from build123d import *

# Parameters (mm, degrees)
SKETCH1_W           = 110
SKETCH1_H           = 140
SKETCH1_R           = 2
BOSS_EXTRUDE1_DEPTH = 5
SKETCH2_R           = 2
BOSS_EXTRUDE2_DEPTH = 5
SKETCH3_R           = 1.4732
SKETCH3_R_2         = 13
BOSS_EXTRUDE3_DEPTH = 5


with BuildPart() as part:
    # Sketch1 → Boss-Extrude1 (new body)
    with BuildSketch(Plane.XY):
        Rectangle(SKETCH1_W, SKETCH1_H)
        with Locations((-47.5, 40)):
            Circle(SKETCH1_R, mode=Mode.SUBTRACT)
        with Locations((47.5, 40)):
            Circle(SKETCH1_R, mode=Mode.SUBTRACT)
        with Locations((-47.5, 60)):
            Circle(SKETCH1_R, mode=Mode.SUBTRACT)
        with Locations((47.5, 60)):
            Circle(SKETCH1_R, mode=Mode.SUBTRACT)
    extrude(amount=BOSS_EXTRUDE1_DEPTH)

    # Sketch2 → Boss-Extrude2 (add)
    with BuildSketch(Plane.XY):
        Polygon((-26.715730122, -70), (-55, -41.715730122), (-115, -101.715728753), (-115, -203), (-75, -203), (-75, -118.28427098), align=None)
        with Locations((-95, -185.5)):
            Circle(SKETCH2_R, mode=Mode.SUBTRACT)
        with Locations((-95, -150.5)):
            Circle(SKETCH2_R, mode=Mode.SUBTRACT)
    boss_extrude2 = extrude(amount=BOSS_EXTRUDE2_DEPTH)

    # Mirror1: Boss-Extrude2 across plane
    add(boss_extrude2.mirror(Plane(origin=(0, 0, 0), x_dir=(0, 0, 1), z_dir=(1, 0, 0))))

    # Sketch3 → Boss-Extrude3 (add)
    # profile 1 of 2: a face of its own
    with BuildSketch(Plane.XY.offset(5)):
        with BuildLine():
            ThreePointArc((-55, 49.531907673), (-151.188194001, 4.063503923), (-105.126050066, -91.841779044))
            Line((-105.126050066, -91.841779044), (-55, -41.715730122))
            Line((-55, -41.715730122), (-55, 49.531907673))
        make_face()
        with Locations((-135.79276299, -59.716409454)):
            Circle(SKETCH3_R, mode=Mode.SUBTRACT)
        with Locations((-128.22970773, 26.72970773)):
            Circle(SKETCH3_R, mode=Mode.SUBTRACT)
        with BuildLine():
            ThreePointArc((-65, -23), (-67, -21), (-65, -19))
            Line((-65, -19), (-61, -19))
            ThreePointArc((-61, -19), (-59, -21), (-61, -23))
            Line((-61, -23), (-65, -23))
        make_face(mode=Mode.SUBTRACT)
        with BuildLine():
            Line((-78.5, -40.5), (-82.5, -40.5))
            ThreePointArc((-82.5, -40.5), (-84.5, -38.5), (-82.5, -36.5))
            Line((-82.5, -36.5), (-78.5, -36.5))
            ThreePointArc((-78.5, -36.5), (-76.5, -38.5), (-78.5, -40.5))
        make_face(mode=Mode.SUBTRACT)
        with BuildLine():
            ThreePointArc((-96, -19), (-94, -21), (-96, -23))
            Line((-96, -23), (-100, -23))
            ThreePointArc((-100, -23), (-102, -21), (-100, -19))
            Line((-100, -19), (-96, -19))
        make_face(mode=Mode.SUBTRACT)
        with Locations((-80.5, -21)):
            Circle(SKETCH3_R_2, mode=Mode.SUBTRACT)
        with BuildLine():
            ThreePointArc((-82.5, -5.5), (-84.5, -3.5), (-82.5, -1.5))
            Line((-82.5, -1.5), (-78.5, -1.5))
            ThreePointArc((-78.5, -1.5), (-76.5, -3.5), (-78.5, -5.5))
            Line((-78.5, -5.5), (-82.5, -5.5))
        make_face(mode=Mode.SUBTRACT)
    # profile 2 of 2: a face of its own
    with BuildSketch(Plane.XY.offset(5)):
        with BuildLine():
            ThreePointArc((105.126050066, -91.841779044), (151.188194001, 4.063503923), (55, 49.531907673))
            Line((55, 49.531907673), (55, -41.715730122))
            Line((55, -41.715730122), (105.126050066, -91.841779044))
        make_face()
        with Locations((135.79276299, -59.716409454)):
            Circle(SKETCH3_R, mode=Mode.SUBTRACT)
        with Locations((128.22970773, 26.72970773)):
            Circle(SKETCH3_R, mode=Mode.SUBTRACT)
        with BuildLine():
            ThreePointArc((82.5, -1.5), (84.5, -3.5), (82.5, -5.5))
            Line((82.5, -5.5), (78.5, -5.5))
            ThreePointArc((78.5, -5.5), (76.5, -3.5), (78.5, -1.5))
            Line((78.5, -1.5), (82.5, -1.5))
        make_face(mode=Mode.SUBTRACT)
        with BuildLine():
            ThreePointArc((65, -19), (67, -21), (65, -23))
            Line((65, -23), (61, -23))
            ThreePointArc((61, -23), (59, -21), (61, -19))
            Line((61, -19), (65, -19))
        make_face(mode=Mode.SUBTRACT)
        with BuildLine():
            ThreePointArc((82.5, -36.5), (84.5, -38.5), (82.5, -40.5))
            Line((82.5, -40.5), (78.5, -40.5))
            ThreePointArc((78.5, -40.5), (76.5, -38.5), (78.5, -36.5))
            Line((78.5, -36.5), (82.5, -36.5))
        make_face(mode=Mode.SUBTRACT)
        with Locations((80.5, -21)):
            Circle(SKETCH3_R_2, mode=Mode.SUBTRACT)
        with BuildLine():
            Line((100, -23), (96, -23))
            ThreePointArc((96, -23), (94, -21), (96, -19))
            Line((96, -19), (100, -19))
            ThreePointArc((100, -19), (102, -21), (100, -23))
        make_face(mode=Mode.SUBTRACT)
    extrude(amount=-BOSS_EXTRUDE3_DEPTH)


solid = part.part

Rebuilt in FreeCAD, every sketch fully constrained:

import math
import FreeCAD as App
import Part
import Sketcher
Q = App.Units.Quantity


def add_polygon(sketch, points):
    """Adds a closed chain of lines whose ends are joined by coincident constraints."""
    first, n = sketch.GeometryCount, len(points)
    for a, b in zip(points, points[1:] + points[:1]):
        sketch.addGeometry(Part.LineSegment(App.Vector(*a, 0), App.Vector(*b, 0)), False)
    for i in range(n):
        sketch.addConstraint(Sketcher.Constraint("Coincident", first + i, 2, first + (i + 1) % n, 1))

doc = App.newDocument("Part")
body = doc.addObject("PartDesign::Body", "Body")

# Sketch on XY plane
sketch1 = body.newObject("Sketcher::SketchObject", "Sketch")
sketch1.AttachmentSupport = (doc.getObject("XY_Plane"), [""])
sketch1.MapMode = "FlatFace"
add_polygon(sketch1, [(-55, 70), (-55, -70), (55, -70), (55, 70)])  # lines 0-3
sketch1.addGeometry(Part.Circle(App.Vector(-47.5, 40, 0), App.Vector(0, 0, 1), 2), False)  # 4
sketch1.addGeometry(Part.Circle(App.Vector(47.5, 40, 0), App.Vector(0, 0, 1), 2), False)  # 5
sketch1.addGeometry(Part.Circle(App.Vector(-47.5, 60, 0), App.Vector(0, 0, 1), 2), False)  # 6
sketch1.addGeometry(Part.Circle(App.Vector(47.5, 60, 0), App.Vector(0, 0, 1), 2), False)  # 7
sketch1.addConstraint([
    Sketcher.Constraint("Vertical", 0),
    Sketcher.Constraint("Horizontal", 1),
    Sketcher.Constraint("Vertical", 2),
    Sketcher.Constraint("Horizontal", 3),
    Sketcher.Constraint("Equal", 4, 5),
    Sketcher.Constraint("Equal", 5, 6),
    Sketcher.Constraint("Equal", 6, 7),
    Sketcher.Constraint("Symmetric", 0, 2, 2, 2, -1, 1),
    Sketcher.Constraint("Symmetric", 4, 3, 5, 3, -2),
    Sketcher.Constraint("Symmetric", 6, 3, 7, 3, -2),
    Sketcher.Constraint("Vertical", 4, 3, 6, 3),
    Sketcher.Constraint("Diameter", 4, 4.0),
    Sketcher.Constraint("DistanceX", 1, 1, 1, 2, 110.0),
    Sketcher.Constraint("DistanceY", 0, 2, 0, 1, 140.0),
    Sketcher.Constraint("DistanceY", -1, 1, 4, 3, 40.0),
    Sketcher.Constraint("DistanceY", -1, 1, 6, 3, 60.0),
    Sketcher.Constraint("DistanceX", 4, 3, 5, 3, 95.0),
])
pad1 = body.newObject("PartDesign::Pad", "Pad")
pad1.Profile = sketch1
pad1.Length = 5

# Sketch on XY plane
sketch2 = body.newObject("Sketcher::SketchObject", "Sketch001")
sketch2.AttachmentSupport = (doc.getObject("XY_Plane"), [""])
sketch2.MapMode = "FlatFace"
add_polygon(sketch2, [(-26.7, -70), (-55, -41.7), (-115, -101.7), (-115, -203), (-75, -203), (-75, -118.3)])  # lines 0-5
sketch2.addGeometry(Part.Circle(App.Vector(-95, -185.5, 0), App.Vector(0, 0, 1), 2), False)  # 6
sketch2.addGeometry(Part.Circle(App.Vector(-95, -150.5, 0), App.Vector(0, 0, 1), 2), False)  # 7
sketch2.addConstraint([
    Sketcher.Constraint("Vertical", 2),
    Sketcher.Constraint("Horizontal", 3),
    Sketcher.Constraint("Vertical", 4),
    Sketcher.Constraint("Equal", 6, 7),
    Sketcher.Constraint("Perpendicular", 0, 1),
    Sketcher.Constraint("Parallel", 1, 5),
    Sketcher.Constraint("Vertical", 6, 3, 7, 3),
    Sketcher.Constraint("Diameter", 6, 4.0),
    Sketcher.Constraint("DistanceX", 3, 1, 3, 2, 40.0),
    Sketcher.Constraint("Angle", 0, Q("135 deg")),
    Sketcher.Constraint("Distance", 0, 39.999998),
    Sketcher.Constraint("DistanceX", 6, 3, -1, 1, 95.0),
    Sketcher.Constraint("DistanceX", 0, 2, -1, 1, 55.0),
    Sketcher.Constraint("DistanceX", 1, 2, -1, 1, 115.0),
    Sketcher.Constraint("DistanceY", 2, 2, -1, 1, 203.0),
    Sketcher.Constraint("DistanceY", 5, 2, -1, 1, 70.0),
    Sketcher.Constraint("DistanceY", 6, 3, 7, 3, 35.0),
    Sketcher.Constraint("DistanceY", 6, 3, -1, 1, 185.5),
])
pad2 = body.newObject("PartDesign::Pad", "Pad001")
pad2.Profile = sketch2
pad2.Length = 5
doc.recompute()

mirrored = body.newObject("PartDesign::Mirrored", "Mirrored")
mirrored.Originals = [pad2]
mirrored.MirrorPlane = (doc.getObject("YZ_Plane"), [""])
body.Tip = mirrored

# Sketch on XY plane
sketch3 = body.newObject("Sketcher::SketchObject", "Sketch002")
sketch3.AttachmentSupport = (doc.getObject("XY_Plane"), [""])
sketch3.MapMode = "FlatFace"
sketch3.AttachmentOffset = App.Placement(App.Vector(0, 0, 5), App.Rotation())
sketch3.addGeometry([
    Part.ArcOfCircle(Part.Circle(App.Vector(-80.5, -21, 0), App.Vector(0, 0, 1), 75), math.radians(70), math.radians(251)),  # 0
    Part.LineSegment(App.Vector(-105.1, -91.8, 0), App.Vector(-55, -41.7, 0)),  # 1
    Part.LineSegment(App.Vector(-55, -41.7, 0), App.Vector(-55, 49.5, 0)),  # 2
    Part.Circle(App.Vector(-135.8, -59.7, 0), App.Vector(0, 0, 1), 1.5),  # 3
    Part.ArcOfCircle(Part.Circle(App.Vector(-78.5, -38.5, 0), App.Vector(0, 0, 1), 2), math.radians(-90), math.radians(90)),  # 4
    Part.LineSegment(App.Vector(-78.5, -40.5, 0), App.Vector(-82.5, -40.5, 0)),  # 5
    Part.ArcOfCircle(Part.Circle(App.Vector(-82.5, -38.5, 0), App.Vector(0, 0, 1), 2), math.radians(90), math.radians(270)),  # 6
    Part.LineSegment(App.Vector(-82.5, -36.5, 0), App.Vector(-78.5, -36.5, 0)),  # 7
    Part.LineSegment(App.Vector(-100, -19, 0), App.Vector(-96, -19, 0)),  # 8
    Part.ArcOfCircle(Part.Circle(App.Vector(-96, -21, 0), App.Vector(0, 0, 1), 2), math.radians(-90), math.radians(90)),  # 9
    Part.LineSegment(App.Vector(-96, -23, 0), App.Vector(-100, -23, 0)),  # 10
    Part.ArcOfCircle(Part.Circle(App.Vector(-100, -21, 0), App.Vector(0, 0, 1), 2), math.radians(90), math.radians(270)),  # 11
    Part.Circle(App.Vector(-80.5, -21, 0), App.Vector(0, 0, 1), 13),  # 12
    Part.LineSegment(App.Vector(-61, -23, 0), App.Vector(-65, -23, 0)),  # 13
    Part.ArcOfCircle(Part.Circle(App.Vector(-65, -21, 0), App.Vector(0, 0, 1), 2), math.radians(90), math.radians(270)),  # 14
    Part.LineSegment(App.Vector(-65, -19, 0), App.Vector(-61, -19, 0)),  # 15
    Part.ArcOfCircle(Part.Circle(App.Vector(-61, -21, 0), App.Vector(0, 0, 1), 2), math.radians(-90), math.radians(90)),  # 16
    Part.Circle(App.Vector(-128.2, 26.7, 0), App.Vector(0, 0, 1), 1.5),  # 17
    Part.LineSegment(App.Vector(-78.5, -5.5, 0), App.Vector(-82.5, -5.5, 0)),  # 18
    Part.ArcOfCircle(Part.Circle(App.Vector(-82.5, -3.5, 0), App.Vector(0, 0, 1), 2), math.radians(90), math.radians(270)),  # 19
    Part.LineSegment(App.Vector(-82.5, -1.5, 0), App.Vector(-78.5, -1.5, 0)),  # 20
    Part.ArcOfCircle(Part.Circle(App.Vector(-78.5, -3.5, 0), App.Vector(0, 0, 1), 2), math.radians(-90), math.radians(90)),  # 21
    Part.ArcOfCircle(Part.Circle(App.Vector(80.5, -21, 0), App.Vector(0, 0, 1), 75), math.radians(-71), math.radians(110)),  # 22
    Part.LineSegment(App.Vector(55, 49.5, 0), App.Vector(55, -41.7, 0)),  # 23
    Part.LineSegment(App.Vector(55, -41.7, 0), App.Vector(105.1, -91.8, 0)),  # 24
    Part.LineSegment(App.Vector(61, -19, 0), App.Vector(65, -19, 0)),  # 25
    Part.ArcOfCircle(Part.Circle(App.Vector(65, -21, 0), App.Vector(0, 0, 1), 2), math.radians(-90), math.radians(90)),  # 26
    Part.LineSegment(App.Vector(65, -23, 0), App.Vector(61, -23, 0)),  # 27
    Part.ArcOfCircle(Part.Circle(App.Vector(61, -21, 0), App.Vector(0, 0, 1), 2), math.radians(90), math.radians(270)),  # 28
    Part.LineSegment(App.Vector(78.5, -36.5, 0), App.Vector(82.5, -36.5, 0)),  # 29
    Part.ArcOfCircle(Part.Circle(App.Vector(82.5, -38.5, 0), App.Vector(0, 0, 1), 2), math.radians(-90), math.radians(90)),  # 30
    Part.LineSegment(App.Vector(82.5, -40.5, 0), App.Vector(78.5, -40.5, 0)),  # 31
    Part.ArcOfCircle(Part.Circle(App.Vector(78.5, -38.5, 0), App.Vector(0, 0, 1), 2), math.radians(90), math.radians(270)),  # 32
    Part.Circle(App.Vector(80.5, -21, 0), App.Vector(0, 0, 1), 13),  # 33
    Part.ArcOfCircle(Part.Circle(App.Vector(100, -21, 0), App.Vector(0, 0, 1), 2), math.radians(-90), math.radians(90)),  # 34
    Part.LineSegment(App.Vector(100, -23, 0), App.Vector(96, -23, 0)),  # 35
    Part.ArcOfCircle(Part.Circle(App.Vector(96, -21, 0), App.Vector(0, 0, 1), 2), math.radians(90), math.radians(270)),  # 36
    Part.LineSegment(App.Vector(96, -19, 0), App.Vector(100, -19, 0)),  # 37
    Part.Circle(App.Vector(135.8, -59.7, 0), App.Vector(0, 0, 1), 1.5),  # 38
    Part.LineSegment(App.Vector(78.5, -1.5, 0), App.Vector(82.5, -1.5, 0)),  # 39
    Part.ArcOfCircle(Part.Circle(App.Vector(82.5, -3.5, 0), App.Vector(0, 0, 1), 2), math.radians(-90), math.radians(90)),  # 40
    Part.LineSegment(App.Vector(82.5, -5.5, 0), App.Vector(78.5, -5.5, 0)),  # 41
    Part.ArcOfCircle(Part.Circle(App.Vector(78.5, -3.5, 0), App.Vector(0, 0, 1), 2), math.radians(90), math.radians(270)),  # 42
    Part.Circle(App.Vector(128.2, 26.7, 0), App.Vector(0, 0, 1), 1.5),  # 43
], False)
sketch3.addConstraint([
    Sketcher.Constraint("Coincident", 0, 2, 1, 1),
    Sketcher.Constraint("Coincident", 1, 2, 2, 1),
    Sketcher.Constraint("Coincident", 2, 2, 0, 1),
    Sketcher.Constraint("Tangent", 4, 1, 5, 1),
    Sketcher.Constraint("Tangent", 5, 2, 6, 2),
    Sketcher.Constraint("Tangent", 6, 1, 7, 1),
    Sketcher.Constraint("Tangent", 7, 2, 4, 2),
    Sketcher.Constraint("Tangent", 8, 2, 9, 2),
    Sketcher.Constraint("Tangent", 9, 1, 10, 1),
    Sketcher.Constraint("Tangent", 10, 2, 11, 2),
    Sketcher.Constraint("Tangent", 11, 1, 8, 1),
    Sketcher.Constraint("Tangent", 13, 2, 14, 2),
    Sketcher.Constraint("Tangent", 14, 1, 15, 1),
    Sketcher.Constraint("Tangent", 15, 2, 16, 2),
    Sketcher.Constraint("Tangent", 16, 1, 13, 1),
    Sketcher.Constraint("Tangent", 18, 2, 19, 2),
    Sketcher.Constraint("Tangent", 19, 1, 20, 1),
    Sketcher.Constraint("Tangent", 20, 2, 21, 2),
    Sketcher.Constraint("Tangent", 21, 1, 18, 1),
    Sketcher.Constraint("Coincident", 22, 2, 23, 1),
    Sketcher.Constraint("Coincident", 23, 2, 24, 1),
    Sketcher.Constraint("Coincident", 24, 2, 22, 1),
    Sketcher.Constraint("Tangent", 25, 2, 26, 2),
    Sketcher.Constraint("Tangent", 26, 1, 27, 1),
    Sketcher.Constraint("Tangent", 27, 2, 28, 2),
    Sketcher.Constraint("Tangent", 28, 1, 25, 1),
    Sketcher.Constraint("Tangent", 29, 2, 30, 2),
    Sketcher.Constraint("Tangent", 30, 1, 31, 1),
    Sketcher.Constraint("Tangent", 31, 2, 32, 2),
    Sketcher.Constraint("Tangent", 32, 1, 29, 1),
    Sketcher.Constraint("Tangent", 34, 1, 35, 1),
    Sketcher.Constraint("Tangent", 35, 2, 36, 2),
    Sketcher.Constraint("Tangent", 36, 1, 37, 1),
    Sketcher.Constraint("Tangent", 37, 2, 34, 2),
    Sketcher.Constraint("Tangent", 39, 2, 40, 2),
    Sketcher.Constraint("Tangent", 40, 1, 41, 1),
    Sketcher.Constraint("Tangent", 41, 2, 42, 2),
    Sketcher.Constraint("Tangent", 42, 1, 39, 1),
    Sketcher.Constraint("Vertical", 2),
    Sketcher.Constraint("Horizontal", 5),
    Sketcher.Constraint("Horizontal", 7),
    Sketcher.Constraint("Horizontal", 8),
    Sketcher.Constraint("Horizontal", 10),
    Sketcher.Constraint("Horizontal", 13),
    Sketcher.Constraint("Horizontal", 15),
    Sketcher.Constraint("Horizontal", 18),
    Sketcher.Constraint("Horizontal", 20),
    Sketcher.Constraint("Vertical", 23),
    Sketcher.Constraint("Horizontal", 25),
    Sketcher.Constraint("Horizontal", 27),
    Sketcher.Constraint("Horizontal", 29),
    Sketcher.Constraint("Horizontal", 31),
    Sketcher.Constraint("Horizontal", 35),
    Sketcher.Constraint("Horizontal", 37),
    Sketcher.Constraint("Horizontal", 39),
    Sketcher.Constraint("Horizontal", 41),
    Sketcher.Constraint("Coincident", 12, 3, 0, 3),
    Sketcher.Constraint("Coincident", 33, 3, 22, 3),
    Sketcher.Constraint("Equal", 6, 9),
    Sketcher.Constraint("Equal", 11, 14),
    Sketcher.Constraint("Equal", 3, 17),
    Sketcher.Constraint("Equal", 16, 19),
    Sketcher.Constraint("Equal", 0, 22),
    Sketcher.Constraint("Equal", 21, 26),
    Sketcher.Constraint("Equal", 28, 30),
    Sketcher.Constraint("Equal", 12, 33),
    Sketcher.Constraint("Equal", 32, 34),
    Sketcher.Constraint("Equal", 17, 38),
    Sketcher.Constraint("Equal", 36, 40),
    Sketcher.Constraint("Equal", 38, 43),
    Sketcher.Constraint("Symmetric", 0, 3, 22, 3, -2),
    Sketcher.Constraint("Symmetric", 14, 3, 26, 3, -2),
    Sketcher.Constraint("Symmetric", 6, 3, 30, 3, -2),
    Sketcher.Constraint("Symmetric", 11, 3, 34, 3, -2),
    Sketcher.Constraint("Symmetric", 3, 3, 38, 3, -2),
    Sketcher.Constraint("Symmetric", 19, 3, 40, 3, -2),
    Sketcher.Constraint("Symmetric", 17, 3, 43, 3, -2),
    Sketcher.Constraint("Symmetric", 1, 2, 23, 2, -2),
    Sketcher.Constraint("Perpendicular", 1, 24),
    Sketcher.Constraint("Horizontal", 0, 3, 9, 3),
    Sketcher.Constraint("Horizontal", 12, 3, 14, 3),
    Sketcher.Constraint("Horizontal", 0, 2, 24, 2),
    Sketcher.Constraint("Vertical", 6, 3, 19, 3),
    Sketcher.Constraint("Vertical", 4, 3, 21, 3),
    Sketcher.Constraint("Vertical", 32, 3, 42, 3),
    Sketcher.Constraint("Equal", 7, 8),
    Sketcher.Constraint("Equal", 10, 13),
    Sketcher.Constraint("Equal", 20, 25),
    Sketcher.Constraint("Equal", 27, 29),
    Sketcher.Constraint("Equal", 31, 35),
    Sketcher.Constraint("Diameter", 12, 26.0),
    Sketcher.Constraint("Radius", 0, 75.0),
    Sketcher.Constraint("Radius", 4, 2.0),
    Sketcher.Constraint("DistanceX", 5, 2, 5, 1, 4.0),
    Sketcher.Constraint("DistanceY", 0, 3, -1, 1, 21.0),
    Sketcher.Constraint("DistanceX", 9, 3, -1, 1, 96.0),
    Sketcher.Constraint("DistanceX", 14, 3, -1, 1, 65.0),
    Sketcher.Constraint("DistanceX", 1, 2, -1, 1, 55.0),
    Sketcher.Constraint("Diameter", 3, 2.9464),
    Sketcher.Constraint("DistanceX", 0, 3, -1, 1, 80.5),
    Sketcher.Constraint("DistanceX", 4, 3, -1, 1, 78.5),
    Sketcher.Constraint("DistanceY", 4, 3, -1, 1, 38.5),
    Sketcher.Constraint("DistanceY", 19, 3, -1, 1, 3.5),
    Sketcher.Constraint("Distance", 1, 70.888939),
    Sketcher.Constraint("DistanceY", 3, 3, -1, 1, 59.716409),
    Sketcher.Constraint("DistanceX", 3, 3, -1, 1, 135.792763),
    Sketcher.Constraint("DistanceX", 17, 3, -1, 1, 128.229708),
    Sketcher.Constraint("DistanceY", -1, 1, 17, 3, 26.729708),
])
pad3 = body.newObject("PartDesign::Pad", "Pad002")
pad3.Profile = sketch3
pad3.Length = 5
pad3.Reversed = True

doc.recompute()
